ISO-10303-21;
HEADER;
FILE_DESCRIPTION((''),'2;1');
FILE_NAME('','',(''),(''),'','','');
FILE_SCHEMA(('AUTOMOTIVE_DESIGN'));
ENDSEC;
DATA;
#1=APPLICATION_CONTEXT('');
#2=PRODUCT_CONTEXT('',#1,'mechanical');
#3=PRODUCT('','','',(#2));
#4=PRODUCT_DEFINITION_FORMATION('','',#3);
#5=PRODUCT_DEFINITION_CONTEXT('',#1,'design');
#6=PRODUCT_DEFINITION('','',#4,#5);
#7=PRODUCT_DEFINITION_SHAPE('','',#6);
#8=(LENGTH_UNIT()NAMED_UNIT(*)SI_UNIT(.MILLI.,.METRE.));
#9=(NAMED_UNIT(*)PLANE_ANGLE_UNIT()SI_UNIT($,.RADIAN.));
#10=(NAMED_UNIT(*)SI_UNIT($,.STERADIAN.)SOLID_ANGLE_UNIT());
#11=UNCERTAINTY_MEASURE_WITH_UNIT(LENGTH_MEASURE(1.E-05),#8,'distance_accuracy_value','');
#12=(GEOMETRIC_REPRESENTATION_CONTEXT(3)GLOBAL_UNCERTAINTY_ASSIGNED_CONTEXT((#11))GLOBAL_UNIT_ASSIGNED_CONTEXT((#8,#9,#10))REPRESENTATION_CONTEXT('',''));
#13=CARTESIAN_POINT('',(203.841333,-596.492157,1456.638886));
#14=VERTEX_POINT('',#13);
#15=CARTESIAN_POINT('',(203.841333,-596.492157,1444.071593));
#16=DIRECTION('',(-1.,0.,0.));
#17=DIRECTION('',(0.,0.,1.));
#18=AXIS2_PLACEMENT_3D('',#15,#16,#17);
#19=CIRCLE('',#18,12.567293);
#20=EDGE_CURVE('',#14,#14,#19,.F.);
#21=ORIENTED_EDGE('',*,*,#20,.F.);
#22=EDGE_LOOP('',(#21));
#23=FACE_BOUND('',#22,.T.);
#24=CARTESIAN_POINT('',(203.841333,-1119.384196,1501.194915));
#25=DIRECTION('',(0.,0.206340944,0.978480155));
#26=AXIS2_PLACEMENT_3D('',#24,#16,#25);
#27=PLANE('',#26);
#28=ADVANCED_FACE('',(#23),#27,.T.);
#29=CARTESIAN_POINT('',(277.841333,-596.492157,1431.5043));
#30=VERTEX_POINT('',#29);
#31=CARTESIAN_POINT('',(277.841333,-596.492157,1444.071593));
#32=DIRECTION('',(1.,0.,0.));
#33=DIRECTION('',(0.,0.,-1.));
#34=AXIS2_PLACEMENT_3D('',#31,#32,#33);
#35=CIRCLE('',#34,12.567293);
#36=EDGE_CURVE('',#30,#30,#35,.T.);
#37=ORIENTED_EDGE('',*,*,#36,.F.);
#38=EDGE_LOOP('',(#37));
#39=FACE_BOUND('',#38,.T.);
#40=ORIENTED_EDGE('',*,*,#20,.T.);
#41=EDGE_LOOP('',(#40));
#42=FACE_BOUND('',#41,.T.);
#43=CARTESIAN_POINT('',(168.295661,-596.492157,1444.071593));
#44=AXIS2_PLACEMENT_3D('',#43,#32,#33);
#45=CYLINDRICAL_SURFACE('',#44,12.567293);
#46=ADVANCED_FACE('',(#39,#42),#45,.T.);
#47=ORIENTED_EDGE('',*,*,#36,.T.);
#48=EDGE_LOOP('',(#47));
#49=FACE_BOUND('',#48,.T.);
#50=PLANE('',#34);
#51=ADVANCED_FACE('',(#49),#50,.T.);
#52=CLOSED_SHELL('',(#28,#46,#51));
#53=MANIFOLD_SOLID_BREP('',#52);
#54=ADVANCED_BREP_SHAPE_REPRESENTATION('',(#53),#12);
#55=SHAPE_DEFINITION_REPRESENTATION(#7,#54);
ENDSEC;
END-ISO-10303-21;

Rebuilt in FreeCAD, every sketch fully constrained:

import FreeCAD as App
import Part
import Sketcher

V = App.Vector
Q = App.Units.Quantity

doc = App.newDocument("Part")
body = doc.addObject("PartDesign::Body", "Body")

# Sketch on YZ plane
sketch1 = doc.addObject("Sketcher::SketchObject", "Sketch")
body.addObject(sketch1)
sketch1.AttachmentSupport = (doc.YZ_Plane, [""])
sketch1.MapMode = "FlatFace"
sketch1.AttachmentOffset = App.Placement(V(0, 0, 277.841333), App.Rotation())
sketch1.addGeometry(Part.Circle(V(-596, 1444, 0), V(0, 0, 1), 13), False)
sketch1.addConstraint(Sketcher.Constraint("Diameter", 0, Q("25.134585 mm")))
sketch1.addConstraint(Sketcher.Constraint("DistanceX", 0, 3, -1, 1, Q("596.492157 mm")))
sketch1.addConstraint(Sketcher.Constraint("DistanceY", -1, 1, 0, 3, Q("1444.071593 mm")))
pad1 = doc.addObject("PartDesign::Pad", "Pad")
body.addObject(pad1)
pad1.Profile = sketch1
pad1.Length = 74
pad1.Reversed = True

doc.recompute()
